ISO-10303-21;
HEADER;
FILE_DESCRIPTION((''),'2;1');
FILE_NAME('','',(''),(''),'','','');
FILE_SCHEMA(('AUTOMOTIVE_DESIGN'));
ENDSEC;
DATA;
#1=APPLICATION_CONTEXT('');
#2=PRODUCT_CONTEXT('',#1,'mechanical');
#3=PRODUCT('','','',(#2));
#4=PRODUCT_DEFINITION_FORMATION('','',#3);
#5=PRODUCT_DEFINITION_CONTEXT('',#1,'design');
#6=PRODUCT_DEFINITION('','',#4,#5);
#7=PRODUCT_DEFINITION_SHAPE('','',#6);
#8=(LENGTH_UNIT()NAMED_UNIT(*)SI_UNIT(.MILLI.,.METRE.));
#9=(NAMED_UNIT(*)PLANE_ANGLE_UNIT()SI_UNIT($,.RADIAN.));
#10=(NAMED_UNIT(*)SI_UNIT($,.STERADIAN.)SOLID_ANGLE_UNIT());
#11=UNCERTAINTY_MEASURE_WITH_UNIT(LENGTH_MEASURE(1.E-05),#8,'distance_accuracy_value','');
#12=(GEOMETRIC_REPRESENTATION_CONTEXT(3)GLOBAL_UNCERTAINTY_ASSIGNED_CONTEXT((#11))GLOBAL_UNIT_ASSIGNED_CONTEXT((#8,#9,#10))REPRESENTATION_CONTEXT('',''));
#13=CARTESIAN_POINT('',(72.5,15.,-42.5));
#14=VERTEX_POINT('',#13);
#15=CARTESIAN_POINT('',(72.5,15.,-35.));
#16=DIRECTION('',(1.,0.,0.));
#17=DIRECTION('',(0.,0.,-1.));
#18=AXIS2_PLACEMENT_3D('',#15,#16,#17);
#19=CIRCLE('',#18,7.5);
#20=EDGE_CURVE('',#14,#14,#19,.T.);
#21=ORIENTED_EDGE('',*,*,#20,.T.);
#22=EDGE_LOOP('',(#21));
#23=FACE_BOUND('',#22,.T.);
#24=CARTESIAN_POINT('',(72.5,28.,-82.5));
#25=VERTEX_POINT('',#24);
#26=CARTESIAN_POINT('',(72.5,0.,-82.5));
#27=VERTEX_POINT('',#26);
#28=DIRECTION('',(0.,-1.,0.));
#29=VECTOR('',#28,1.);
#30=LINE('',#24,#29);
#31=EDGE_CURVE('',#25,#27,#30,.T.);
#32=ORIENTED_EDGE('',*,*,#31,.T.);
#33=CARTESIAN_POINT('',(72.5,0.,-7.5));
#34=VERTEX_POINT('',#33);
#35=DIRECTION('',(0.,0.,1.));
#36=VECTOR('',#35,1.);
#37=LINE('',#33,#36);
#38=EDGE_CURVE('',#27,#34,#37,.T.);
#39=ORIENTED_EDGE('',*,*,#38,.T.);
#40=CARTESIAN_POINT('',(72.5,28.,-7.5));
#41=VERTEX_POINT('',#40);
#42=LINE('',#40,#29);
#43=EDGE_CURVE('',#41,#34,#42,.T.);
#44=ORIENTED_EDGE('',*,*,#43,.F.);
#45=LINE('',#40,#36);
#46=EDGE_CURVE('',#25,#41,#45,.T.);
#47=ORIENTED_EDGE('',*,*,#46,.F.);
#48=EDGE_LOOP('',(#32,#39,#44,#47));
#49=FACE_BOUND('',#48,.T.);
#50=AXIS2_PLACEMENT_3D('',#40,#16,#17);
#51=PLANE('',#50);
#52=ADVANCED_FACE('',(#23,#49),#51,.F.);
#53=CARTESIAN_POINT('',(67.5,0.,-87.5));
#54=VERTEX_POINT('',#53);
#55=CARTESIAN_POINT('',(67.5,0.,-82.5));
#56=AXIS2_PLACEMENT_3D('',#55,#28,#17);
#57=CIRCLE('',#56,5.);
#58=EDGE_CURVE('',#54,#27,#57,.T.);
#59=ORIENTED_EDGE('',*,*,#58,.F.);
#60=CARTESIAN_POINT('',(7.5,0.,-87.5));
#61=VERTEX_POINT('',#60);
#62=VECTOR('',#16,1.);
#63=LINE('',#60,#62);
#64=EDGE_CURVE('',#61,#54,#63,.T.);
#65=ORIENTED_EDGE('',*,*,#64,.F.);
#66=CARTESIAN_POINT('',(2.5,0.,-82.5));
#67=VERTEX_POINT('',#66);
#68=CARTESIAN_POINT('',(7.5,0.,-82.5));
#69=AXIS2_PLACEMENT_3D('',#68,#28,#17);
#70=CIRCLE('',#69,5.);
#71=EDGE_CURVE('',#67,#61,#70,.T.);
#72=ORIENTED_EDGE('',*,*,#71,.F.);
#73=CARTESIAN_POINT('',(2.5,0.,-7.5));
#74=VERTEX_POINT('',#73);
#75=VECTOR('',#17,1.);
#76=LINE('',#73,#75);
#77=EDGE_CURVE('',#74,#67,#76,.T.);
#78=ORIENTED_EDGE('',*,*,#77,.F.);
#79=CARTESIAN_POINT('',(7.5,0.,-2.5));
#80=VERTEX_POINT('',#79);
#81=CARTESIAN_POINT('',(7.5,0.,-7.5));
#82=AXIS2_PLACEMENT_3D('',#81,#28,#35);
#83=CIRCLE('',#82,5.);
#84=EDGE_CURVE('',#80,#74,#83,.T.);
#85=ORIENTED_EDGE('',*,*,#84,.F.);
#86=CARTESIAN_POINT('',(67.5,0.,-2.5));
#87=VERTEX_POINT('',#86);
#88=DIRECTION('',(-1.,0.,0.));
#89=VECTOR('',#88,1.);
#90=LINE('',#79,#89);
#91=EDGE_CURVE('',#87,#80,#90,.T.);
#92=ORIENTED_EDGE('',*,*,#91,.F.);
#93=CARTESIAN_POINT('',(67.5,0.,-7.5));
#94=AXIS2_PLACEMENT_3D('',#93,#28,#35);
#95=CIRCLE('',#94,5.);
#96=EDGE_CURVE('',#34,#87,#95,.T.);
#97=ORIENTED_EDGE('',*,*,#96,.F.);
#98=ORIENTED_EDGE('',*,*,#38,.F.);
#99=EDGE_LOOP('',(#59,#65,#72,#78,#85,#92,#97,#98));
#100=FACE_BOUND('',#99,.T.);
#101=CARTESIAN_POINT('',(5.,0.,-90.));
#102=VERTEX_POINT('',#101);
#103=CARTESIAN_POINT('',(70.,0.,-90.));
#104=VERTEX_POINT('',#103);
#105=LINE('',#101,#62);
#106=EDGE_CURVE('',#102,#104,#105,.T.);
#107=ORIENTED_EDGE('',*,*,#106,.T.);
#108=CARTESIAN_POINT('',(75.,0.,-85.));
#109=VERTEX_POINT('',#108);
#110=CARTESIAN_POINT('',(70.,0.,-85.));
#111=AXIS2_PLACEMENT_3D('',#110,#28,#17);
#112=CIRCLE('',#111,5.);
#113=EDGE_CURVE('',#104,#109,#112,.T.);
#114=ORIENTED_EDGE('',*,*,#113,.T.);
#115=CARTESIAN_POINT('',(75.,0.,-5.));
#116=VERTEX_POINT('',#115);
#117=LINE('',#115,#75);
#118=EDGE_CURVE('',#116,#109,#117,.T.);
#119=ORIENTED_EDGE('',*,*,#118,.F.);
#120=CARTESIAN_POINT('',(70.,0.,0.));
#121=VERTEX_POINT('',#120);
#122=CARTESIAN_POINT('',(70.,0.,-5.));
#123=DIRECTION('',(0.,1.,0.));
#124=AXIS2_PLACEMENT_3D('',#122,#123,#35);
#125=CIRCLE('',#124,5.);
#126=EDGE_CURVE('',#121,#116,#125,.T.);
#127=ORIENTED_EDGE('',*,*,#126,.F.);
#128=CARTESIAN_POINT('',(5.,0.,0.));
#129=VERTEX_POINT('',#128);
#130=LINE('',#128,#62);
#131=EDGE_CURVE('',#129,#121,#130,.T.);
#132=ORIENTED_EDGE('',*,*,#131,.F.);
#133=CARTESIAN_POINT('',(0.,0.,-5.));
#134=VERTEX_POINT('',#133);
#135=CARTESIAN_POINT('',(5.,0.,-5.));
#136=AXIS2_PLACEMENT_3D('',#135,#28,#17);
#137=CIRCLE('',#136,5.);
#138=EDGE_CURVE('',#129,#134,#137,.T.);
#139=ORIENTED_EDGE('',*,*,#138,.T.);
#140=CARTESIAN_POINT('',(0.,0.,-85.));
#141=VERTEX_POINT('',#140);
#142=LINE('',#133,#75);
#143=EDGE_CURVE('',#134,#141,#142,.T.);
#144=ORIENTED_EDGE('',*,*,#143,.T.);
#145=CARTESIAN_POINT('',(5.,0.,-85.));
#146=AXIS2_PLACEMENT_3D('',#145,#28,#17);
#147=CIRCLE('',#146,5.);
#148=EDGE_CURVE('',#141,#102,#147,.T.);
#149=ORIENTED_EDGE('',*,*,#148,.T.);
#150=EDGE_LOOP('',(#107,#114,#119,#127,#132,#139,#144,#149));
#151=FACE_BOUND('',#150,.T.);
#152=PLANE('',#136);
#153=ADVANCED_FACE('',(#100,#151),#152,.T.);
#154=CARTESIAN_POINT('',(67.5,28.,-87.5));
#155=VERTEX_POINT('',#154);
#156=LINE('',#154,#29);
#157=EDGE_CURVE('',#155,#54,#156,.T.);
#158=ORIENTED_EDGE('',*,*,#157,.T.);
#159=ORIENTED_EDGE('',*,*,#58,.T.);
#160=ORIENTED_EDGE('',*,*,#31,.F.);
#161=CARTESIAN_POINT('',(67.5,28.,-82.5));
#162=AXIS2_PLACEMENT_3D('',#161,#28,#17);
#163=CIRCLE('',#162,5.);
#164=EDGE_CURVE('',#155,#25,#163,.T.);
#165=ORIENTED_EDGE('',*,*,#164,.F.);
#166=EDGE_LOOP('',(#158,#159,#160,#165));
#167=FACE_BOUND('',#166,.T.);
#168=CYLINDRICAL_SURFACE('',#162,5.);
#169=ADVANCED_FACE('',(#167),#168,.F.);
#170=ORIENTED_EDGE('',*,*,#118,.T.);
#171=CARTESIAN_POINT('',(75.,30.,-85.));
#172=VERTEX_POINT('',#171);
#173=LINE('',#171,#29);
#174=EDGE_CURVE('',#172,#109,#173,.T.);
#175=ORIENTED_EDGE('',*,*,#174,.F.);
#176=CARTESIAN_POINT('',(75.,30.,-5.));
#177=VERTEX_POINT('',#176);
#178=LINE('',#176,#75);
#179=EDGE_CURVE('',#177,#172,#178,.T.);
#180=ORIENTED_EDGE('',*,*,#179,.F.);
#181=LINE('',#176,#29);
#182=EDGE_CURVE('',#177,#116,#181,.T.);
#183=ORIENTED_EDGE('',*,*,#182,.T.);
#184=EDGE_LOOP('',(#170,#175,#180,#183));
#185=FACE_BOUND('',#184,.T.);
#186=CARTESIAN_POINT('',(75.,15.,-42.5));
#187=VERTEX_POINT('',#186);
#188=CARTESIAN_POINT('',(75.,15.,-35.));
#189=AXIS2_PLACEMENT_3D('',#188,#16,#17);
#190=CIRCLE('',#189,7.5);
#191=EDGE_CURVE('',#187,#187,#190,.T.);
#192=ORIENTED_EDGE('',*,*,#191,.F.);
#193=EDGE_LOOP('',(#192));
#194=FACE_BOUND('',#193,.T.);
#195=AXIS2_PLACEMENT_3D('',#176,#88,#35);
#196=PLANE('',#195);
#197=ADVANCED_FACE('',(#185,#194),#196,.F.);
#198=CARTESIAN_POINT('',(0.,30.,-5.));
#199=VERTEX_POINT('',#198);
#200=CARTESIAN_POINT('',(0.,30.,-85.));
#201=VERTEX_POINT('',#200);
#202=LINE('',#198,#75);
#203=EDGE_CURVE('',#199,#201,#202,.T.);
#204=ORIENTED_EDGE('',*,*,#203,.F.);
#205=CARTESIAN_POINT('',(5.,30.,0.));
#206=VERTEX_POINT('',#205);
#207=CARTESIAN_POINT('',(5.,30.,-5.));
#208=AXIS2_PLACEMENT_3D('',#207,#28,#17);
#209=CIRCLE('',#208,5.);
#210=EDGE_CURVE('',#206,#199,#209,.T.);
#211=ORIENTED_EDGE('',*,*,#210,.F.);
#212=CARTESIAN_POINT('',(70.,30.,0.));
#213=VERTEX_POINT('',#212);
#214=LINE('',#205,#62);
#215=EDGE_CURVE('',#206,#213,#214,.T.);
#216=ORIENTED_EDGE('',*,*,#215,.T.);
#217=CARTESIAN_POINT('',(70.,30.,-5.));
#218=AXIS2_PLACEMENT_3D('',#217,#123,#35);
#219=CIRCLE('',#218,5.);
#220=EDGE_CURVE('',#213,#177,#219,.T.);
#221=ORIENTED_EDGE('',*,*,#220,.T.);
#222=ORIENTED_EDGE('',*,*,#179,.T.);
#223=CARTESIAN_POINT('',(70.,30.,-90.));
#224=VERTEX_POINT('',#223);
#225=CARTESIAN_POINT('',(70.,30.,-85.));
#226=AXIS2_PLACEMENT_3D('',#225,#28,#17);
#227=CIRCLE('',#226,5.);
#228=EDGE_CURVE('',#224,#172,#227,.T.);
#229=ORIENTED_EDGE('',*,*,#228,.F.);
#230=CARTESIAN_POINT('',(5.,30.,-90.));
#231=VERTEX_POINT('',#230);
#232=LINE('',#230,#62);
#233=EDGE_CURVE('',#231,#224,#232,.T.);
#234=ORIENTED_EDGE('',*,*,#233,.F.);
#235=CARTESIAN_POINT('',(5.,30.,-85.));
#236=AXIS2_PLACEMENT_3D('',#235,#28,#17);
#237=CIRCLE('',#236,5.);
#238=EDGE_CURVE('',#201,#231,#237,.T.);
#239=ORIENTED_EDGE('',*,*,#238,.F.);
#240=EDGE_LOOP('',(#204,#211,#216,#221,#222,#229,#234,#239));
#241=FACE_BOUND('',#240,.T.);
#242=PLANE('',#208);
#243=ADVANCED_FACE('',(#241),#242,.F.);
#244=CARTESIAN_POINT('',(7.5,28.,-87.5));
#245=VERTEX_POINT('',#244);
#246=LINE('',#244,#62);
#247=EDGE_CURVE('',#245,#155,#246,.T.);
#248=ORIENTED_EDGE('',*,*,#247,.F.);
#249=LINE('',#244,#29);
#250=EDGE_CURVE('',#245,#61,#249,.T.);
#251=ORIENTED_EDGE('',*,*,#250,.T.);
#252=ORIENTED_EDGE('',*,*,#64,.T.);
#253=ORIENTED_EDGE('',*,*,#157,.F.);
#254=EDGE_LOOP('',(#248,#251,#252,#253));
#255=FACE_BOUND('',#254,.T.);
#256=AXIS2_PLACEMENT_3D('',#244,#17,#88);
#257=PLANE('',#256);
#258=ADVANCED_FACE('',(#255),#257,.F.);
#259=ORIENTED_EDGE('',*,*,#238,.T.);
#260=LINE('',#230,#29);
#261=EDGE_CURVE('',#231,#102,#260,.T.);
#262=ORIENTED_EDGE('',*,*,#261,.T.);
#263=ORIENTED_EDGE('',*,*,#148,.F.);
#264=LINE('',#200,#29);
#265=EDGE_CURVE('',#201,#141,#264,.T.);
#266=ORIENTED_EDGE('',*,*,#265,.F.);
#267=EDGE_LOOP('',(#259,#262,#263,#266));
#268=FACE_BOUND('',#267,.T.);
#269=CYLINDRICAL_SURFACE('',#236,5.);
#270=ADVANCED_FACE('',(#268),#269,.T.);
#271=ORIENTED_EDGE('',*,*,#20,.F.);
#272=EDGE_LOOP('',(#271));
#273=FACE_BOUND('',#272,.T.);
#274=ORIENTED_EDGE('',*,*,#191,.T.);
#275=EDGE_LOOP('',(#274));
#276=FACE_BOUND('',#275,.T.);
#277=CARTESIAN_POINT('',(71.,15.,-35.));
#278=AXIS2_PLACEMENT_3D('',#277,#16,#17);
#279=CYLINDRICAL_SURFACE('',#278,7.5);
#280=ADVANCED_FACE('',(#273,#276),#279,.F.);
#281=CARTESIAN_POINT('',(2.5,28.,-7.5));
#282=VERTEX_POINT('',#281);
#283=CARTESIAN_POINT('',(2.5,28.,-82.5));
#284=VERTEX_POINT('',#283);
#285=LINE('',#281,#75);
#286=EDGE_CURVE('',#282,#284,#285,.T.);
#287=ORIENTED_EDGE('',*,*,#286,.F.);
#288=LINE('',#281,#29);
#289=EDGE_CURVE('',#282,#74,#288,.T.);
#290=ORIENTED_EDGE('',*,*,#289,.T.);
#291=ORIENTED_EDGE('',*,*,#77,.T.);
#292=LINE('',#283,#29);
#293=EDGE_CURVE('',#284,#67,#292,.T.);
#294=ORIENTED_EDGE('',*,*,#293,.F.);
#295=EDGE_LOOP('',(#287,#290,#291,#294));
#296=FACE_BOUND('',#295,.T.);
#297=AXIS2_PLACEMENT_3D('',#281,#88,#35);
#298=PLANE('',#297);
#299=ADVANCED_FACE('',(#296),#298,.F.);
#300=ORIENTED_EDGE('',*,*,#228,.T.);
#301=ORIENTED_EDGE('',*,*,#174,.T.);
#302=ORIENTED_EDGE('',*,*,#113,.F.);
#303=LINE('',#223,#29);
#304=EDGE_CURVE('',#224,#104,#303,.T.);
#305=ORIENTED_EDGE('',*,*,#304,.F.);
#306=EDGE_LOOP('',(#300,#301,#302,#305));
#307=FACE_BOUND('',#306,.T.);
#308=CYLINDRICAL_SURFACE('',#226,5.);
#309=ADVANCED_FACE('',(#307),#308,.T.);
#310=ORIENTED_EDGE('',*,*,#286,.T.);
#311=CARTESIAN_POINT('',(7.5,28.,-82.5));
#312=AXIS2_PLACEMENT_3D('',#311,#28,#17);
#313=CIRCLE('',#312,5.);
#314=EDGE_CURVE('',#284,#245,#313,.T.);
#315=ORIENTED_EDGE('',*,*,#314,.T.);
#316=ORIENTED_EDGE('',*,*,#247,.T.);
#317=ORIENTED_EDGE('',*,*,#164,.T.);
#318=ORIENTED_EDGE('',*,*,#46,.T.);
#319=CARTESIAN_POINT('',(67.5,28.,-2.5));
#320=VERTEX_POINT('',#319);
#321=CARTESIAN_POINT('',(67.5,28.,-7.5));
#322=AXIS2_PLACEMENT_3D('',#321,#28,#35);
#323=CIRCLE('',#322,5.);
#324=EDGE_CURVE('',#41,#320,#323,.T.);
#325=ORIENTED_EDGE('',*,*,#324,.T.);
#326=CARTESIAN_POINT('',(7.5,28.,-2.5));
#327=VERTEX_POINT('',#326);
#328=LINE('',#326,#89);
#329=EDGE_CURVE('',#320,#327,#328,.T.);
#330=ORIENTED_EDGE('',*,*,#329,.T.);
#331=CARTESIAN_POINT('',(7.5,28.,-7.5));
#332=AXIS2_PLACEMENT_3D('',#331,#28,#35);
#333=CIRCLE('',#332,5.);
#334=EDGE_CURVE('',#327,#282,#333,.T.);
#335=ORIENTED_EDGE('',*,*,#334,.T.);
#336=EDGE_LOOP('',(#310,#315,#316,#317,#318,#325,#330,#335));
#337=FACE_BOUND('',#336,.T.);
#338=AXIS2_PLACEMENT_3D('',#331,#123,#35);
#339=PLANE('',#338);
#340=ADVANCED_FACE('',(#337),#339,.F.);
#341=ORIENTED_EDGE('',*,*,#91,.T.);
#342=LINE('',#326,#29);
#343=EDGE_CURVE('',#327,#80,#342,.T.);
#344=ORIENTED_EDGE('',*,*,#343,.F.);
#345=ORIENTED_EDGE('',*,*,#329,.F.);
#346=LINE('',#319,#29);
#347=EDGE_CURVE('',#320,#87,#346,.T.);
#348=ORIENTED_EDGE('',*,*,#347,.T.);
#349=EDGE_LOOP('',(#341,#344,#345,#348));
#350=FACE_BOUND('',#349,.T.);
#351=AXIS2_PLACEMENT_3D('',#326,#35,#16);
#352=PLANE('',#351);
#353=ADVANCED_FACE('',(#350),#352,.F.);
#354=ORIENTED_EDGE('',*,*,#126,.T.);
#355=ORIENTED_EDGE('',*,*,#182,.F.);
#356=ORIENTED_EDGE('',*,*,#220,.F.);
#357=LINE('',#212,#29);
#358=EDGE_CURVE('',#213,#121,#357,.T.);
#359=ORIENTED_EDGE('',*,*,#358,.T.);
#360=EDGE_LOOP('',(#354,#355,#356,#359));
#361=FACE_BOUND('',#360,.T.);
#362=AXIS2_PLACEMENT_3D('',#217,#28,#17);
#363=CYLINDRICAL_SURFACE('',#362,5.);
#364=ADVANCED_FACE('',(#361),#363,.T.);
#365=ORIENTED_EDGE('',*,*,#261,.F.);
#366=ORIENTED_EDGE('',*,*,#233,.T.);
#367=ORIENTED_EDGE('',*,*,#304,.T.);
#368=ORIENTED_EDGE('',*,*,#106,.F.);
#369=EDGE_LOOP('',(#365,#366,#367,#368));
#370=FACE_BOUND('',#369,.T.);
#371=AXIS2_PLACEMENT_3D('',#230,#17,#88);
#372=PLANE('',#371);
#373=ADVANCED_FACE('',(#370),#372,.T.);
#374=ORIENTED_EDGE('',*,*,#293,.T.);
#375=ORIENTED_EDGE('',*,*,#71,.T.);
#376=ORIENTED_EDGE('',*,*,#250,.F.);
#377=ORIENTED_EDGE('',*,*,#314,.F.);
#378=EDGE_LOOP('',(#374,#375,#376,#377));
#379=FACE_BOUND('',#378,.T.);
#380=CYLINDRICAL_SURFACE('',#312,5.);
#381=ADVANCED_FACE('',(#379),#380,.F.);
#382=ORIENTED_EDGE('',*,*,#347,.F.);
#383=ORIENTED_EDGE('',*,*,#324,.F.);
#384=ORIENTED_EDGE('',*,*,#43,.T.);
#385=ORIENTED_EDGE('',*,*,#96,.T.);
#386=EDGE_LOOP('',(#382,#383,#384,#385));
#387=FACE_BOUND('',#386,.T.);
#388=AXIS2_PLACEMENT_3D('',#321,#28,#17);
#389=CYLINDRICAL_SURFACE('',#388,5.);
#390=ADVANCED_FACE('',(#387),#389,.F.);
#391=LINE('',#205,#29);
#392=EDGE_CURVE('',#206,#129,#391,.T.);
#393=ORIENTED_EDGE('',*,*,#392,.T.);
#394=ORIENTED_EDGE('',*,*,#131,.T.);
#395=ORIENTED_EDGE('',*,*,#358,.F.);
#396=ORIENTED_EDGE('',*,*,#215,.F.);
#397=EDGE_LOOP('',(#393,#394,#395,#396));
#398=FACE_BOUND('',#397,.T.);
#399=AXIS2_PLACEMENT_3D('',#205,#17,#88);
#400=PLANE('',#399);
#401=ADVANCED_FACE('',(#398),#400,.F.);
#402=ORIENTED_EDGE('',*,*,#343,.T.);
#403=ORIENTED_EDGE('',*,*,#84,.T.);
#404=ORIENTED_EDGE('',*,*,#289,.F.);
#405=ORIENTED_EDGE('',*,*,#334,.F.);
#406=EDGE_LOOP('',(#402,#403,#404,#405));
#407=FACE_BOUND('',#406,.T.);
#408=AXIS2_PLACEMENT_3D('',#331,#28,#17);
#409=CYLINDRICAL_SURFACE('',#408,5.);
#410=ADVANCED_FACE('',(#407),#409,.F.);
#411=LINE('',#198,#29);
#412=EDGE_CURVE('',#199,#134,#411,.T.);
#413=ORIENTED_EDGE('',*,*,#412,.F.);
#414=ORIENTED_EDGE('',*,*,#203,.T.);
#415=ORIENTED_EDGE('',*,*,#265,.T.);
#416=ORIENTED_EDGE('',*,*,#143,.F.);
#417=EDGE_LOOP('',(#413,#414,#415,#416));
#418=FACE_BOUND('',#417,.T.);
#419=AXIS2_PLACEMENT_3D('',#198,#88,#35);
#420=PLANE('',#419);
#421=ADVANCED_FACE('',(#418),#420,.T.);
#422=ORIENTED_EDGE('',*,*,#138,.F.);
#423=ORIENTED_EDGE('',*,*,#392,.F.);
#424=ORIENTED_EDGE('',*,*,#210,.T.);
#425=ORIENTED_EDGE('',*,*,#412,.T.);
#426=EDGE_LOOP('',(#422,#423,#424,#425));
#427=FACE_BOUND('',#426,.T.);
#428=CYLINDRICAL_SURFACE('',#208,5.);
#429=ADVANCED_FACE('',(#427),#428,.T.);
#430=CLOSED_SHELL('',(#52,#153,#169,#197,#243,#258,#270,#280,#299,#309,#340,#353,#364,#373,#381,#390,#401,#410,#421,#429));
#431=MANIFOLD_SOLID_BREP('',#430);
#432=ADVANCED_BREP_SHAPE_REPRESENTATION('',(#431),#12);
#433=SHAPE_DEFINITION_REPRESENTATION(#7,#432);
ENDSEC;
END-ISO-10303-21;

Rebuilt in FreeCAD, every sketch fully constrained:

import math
import FreeCAD as App
import Part
import Sketcher

V = App.Vector

doc = App.newDocument("Part")
body = doc.addObject("PartDesign::Body", "Body")

sketch1 = body.newObject("Sketcher::SketchObject", "Sketch")
sketch1.AttachmentSupport = (doc.getObject("XZ_Plane"), [""])
sketch1.MapMode = "FlatFace"
sketch1.addGeometry(Part.LineSegment(V(5, 0, 0), V(70, 0, 0)), False)
sketch1.addGeometry(Part.ArcOfCircle(Part.Circle(V(70, -5, 0), V(0, 0, 1), 5), math.radians(0), math.radians(90)), False)
sketch1.addGeometry(Part.LineSegment(V(75, -5, 0), V(75, -85, 0)), False)
sketch1.addGeometry(Part.ArcOfCircle(Part.Circle(V(70, -85, 0), V(0, 0, 1), 5), math.radians(-90), math.radians(0)), False)
sketch1.addGeometry(Part.LineSegment(V(70, -90, 0), V(5, -90, 0)), False)
sketch1.addGeometry(Part.ArcOfCircle(Part.Circle(V(5, -85, 0), V(0, 0, 1), 5), math.radians(180), math.radians(270)), False)
sketch1.addGeometry(Part.LineSegment(V(0, -85, 0), V(0, -5, 0)), False)
sketch1.addGeometry(Part.ArcOfCircle(Part.Circle(V(5, -5, 0), V(0, 0, 1), 5), math.radians(90), math.radians(180)), False)
sketch1.addConstraint(Sketcher.Constraint("Tangent", 0, 2, 1, 2))
sketch1.addConstraint(Sketcher.Constraint("Tangent", 1, 1, 2, 1))
sketch1.addConstraint(Sketcher.Constraint("Tangent", 2, 2, 3, 2))
sketch1.addConstraint(Sketcher.Constraint("Tangent", 3, 1, 4, 1))
sketch1.addConstraint(Sketcher.Constraint("Tangent", 4, 2, 5, 2))
sketch1.addConstraint(Sketcher.Constraint("Tangent", 5, 1, 6, 1))
sketch1.addConstraint(Sketcher.Constraint("Tangent", 6, 2, 7, 2))
sketch1.addConstraint(Sketcher.Constraint("Tangent", 7, 1, 0, 1))
sketch1.addConstraint(Sketcher.Constraint("Horizontal", 0))
sketch1.addConstraint(Sketcher.Constraint("Vertical", 2))
sketch1.addConstraint(Sketcher.Constraint("Horizontal", 4))
sketch1.addConstraint(Sketcher.Constraint("Vertical", 6))
sketch1.addConstraint(Sketcher.Constraint("Equal", 1, 3))
sketch1.addConstraint(Sketcher.Constraint("Equal", 3, 5))
sketch1.addConstraint(Sketcher.Constraint("Equal", 5, 7))
sketch1.addConstraint(Sketcher.Constraint("PointOnObject", 0, 2, -1))
sketch1.addConstraint(Sketcher.Constraint("PointOnObject", 5, 1, -2))
sketch1.addConstraint(Sketcher.Constraint("Radius", 1, 5.0))
sketch1.addConstraint(Sketcher.Constraint("DistanceX", 0, 1, 0, 2, 65.0))
sketch1.addConstraint(Sketcher.Constraint("DistanceY", 2, 2, 2, 1, 80.0))
pad1 = body.newObject("PartDesign::Pad", "Pad")
pad1.Profile = sketch1
pad1.Length = 30
pad1.Reversed = True

sketch2 = body.newObject("Sketcher::SketchObject", "Sketch001")
sketch2.AttachmentSupport = (doc.getObject("XZ_Plane"), [""])
sketch2.MapMode = "FlatFace"
sketch2.addGeometry(Part.LineSegment(V(67.5, -2.5, 0), V(7.5, -2.5, 0)), False)
sketch2.addGeometry(Part.ArcOfCircle(Part.Circle(V(7.5, -7.5, 0), V(0, 0, 1), 5), math.radians(90), math.radians(180)), False)
sketch2.addGeometry(Part.LineSegment(V(2.5, -7.5, 0), V(2.5, -82.5, 0)), False)
sketch2.addGeometry(Part.ArcOfCircle(Part.Circle(V(7.5, -82.5, 0), V(0, 0, 1), 5), math.radians(180), math.radians(270)), False)
sketch2.addGeometry(Part.LineSegment(V(7.5, -87.5, 0), V(67.5, -87.5, 0)), False)
sketch2.addGeometry(Part.ArcOfCircle(Part.Circle(V(67.5, -82.5, 0), V(0, 0, 1), 5), math.radians(-90), math.radians(0)), False)
sketch2.addGeometry(Part.LineSegment(V(72.5, -82.5, 0), V(72.5, -7.5, 0)), False)
sketch2.addGeometry(Part.ArcOfCircle(Part.Circle(V(67.5, -7.5, 0), V(0, 0, 1), 5), math.radians(0), math.radians(90)), False)
sketch2.addConstraint(Sketcher.Constraint("Tangent", 0, 2, 1, 1))
sketch2.addConstraint(Sketcher.Constraint("Tangent", 1, 2, 2, 1))
sketch2.addConstraint(Sketcher.Constraint("Tangent", 2, 2, 3, 1))
sketch2.addConstraint(Sketcher.Constraint("Tangent", 3, 2, 4, 1))
sketch2.addConstraint(Sketcher.Constraint("Tangent", 4, 2, 5, 1))
sketch2.addConstraint(Sketcher.Constraint("Tangent", 5, 2, 6, 1))
sketch2.addConstraint(Sketcher.Constraint("Tangent", 6, 2, 7, 1))
sketch2.addConstraint(Sketcher.Constraint("Tangent", 7, 2, 0, 1))
sketch2.addConstraint(Sketcher.Constraint("Horizontal", 0))
sketch2.addConstraint(Sketcher.Constraint("Vertical", 2))
sketch2.addConstraint(Sketcher.Constraint("Horizontal", 4))
sketch2.addConstraint(Sketcher.Constraint("Vertical", 6))
sketch2.addConstraint(Sketcher.Constraint("Equal", 1, 3))
sketch2.addConstraint(Sketcher.Constraint("Equal", 3, 5))
sketch2.addConstraint(Sketcher.Constraint("Equal", 5, 7))
sketch2.addConstraint(Sketcher.Constraint("Radius", 1, 5.0))
sketch2.addConstraint(Sketcher.Constraint("DistanceX", 0, 2, 0, 1, 60.0))
sketch2.addConstraint(Sketcher.Constraint("DistanceY", 2, 2, 2, 1, 75.0))
sketch2.addConstraint(Sketcher.Constraint("DistanceX", -1, 1, 1, 3, 7.5))
sketch2.addConstraint(Sketcher.Constraint("DistanceY", 1, 3, -1, 1, 7.5))
pocket1 = body.newObject("PartDesign::Pocket", "Pocket")
pocket1.Profile = sketch2
pocket1.Length = 28

sketch3 = body.newObject("Sketcher::SketchObject", "Sketch002")
sketch3.AttachmentSupport = (doc.getObject("YZ_Plane"), [""])
sketch3.MapMode = "FlatFace"
sketch3.AttachmentOffset = App.Placement(V(0, 0, 75), App.Rotation())
sketch3.addGeometry(Part.Circle(V(15, -35, 0), V(0, 0, 1), 7.5), False)
sketch3.addConstraint(Sketcher.Constraint("Diameter", 0, 15.0))
sketch3.addConstraint(Sketcher.Constraint("DistanceX", -1, 1, 0, 3, 15.0))
sketch3.addConstraint(Sketcher.Constraint("DistanceY", 0, 3, -1, 1, 35.0))
pocket2 = body.newObject("PartDesign::Pocket", "Pocket001")
pocket2.Profile = sketch3
pocket2.Length = 4

doc.recompute()
